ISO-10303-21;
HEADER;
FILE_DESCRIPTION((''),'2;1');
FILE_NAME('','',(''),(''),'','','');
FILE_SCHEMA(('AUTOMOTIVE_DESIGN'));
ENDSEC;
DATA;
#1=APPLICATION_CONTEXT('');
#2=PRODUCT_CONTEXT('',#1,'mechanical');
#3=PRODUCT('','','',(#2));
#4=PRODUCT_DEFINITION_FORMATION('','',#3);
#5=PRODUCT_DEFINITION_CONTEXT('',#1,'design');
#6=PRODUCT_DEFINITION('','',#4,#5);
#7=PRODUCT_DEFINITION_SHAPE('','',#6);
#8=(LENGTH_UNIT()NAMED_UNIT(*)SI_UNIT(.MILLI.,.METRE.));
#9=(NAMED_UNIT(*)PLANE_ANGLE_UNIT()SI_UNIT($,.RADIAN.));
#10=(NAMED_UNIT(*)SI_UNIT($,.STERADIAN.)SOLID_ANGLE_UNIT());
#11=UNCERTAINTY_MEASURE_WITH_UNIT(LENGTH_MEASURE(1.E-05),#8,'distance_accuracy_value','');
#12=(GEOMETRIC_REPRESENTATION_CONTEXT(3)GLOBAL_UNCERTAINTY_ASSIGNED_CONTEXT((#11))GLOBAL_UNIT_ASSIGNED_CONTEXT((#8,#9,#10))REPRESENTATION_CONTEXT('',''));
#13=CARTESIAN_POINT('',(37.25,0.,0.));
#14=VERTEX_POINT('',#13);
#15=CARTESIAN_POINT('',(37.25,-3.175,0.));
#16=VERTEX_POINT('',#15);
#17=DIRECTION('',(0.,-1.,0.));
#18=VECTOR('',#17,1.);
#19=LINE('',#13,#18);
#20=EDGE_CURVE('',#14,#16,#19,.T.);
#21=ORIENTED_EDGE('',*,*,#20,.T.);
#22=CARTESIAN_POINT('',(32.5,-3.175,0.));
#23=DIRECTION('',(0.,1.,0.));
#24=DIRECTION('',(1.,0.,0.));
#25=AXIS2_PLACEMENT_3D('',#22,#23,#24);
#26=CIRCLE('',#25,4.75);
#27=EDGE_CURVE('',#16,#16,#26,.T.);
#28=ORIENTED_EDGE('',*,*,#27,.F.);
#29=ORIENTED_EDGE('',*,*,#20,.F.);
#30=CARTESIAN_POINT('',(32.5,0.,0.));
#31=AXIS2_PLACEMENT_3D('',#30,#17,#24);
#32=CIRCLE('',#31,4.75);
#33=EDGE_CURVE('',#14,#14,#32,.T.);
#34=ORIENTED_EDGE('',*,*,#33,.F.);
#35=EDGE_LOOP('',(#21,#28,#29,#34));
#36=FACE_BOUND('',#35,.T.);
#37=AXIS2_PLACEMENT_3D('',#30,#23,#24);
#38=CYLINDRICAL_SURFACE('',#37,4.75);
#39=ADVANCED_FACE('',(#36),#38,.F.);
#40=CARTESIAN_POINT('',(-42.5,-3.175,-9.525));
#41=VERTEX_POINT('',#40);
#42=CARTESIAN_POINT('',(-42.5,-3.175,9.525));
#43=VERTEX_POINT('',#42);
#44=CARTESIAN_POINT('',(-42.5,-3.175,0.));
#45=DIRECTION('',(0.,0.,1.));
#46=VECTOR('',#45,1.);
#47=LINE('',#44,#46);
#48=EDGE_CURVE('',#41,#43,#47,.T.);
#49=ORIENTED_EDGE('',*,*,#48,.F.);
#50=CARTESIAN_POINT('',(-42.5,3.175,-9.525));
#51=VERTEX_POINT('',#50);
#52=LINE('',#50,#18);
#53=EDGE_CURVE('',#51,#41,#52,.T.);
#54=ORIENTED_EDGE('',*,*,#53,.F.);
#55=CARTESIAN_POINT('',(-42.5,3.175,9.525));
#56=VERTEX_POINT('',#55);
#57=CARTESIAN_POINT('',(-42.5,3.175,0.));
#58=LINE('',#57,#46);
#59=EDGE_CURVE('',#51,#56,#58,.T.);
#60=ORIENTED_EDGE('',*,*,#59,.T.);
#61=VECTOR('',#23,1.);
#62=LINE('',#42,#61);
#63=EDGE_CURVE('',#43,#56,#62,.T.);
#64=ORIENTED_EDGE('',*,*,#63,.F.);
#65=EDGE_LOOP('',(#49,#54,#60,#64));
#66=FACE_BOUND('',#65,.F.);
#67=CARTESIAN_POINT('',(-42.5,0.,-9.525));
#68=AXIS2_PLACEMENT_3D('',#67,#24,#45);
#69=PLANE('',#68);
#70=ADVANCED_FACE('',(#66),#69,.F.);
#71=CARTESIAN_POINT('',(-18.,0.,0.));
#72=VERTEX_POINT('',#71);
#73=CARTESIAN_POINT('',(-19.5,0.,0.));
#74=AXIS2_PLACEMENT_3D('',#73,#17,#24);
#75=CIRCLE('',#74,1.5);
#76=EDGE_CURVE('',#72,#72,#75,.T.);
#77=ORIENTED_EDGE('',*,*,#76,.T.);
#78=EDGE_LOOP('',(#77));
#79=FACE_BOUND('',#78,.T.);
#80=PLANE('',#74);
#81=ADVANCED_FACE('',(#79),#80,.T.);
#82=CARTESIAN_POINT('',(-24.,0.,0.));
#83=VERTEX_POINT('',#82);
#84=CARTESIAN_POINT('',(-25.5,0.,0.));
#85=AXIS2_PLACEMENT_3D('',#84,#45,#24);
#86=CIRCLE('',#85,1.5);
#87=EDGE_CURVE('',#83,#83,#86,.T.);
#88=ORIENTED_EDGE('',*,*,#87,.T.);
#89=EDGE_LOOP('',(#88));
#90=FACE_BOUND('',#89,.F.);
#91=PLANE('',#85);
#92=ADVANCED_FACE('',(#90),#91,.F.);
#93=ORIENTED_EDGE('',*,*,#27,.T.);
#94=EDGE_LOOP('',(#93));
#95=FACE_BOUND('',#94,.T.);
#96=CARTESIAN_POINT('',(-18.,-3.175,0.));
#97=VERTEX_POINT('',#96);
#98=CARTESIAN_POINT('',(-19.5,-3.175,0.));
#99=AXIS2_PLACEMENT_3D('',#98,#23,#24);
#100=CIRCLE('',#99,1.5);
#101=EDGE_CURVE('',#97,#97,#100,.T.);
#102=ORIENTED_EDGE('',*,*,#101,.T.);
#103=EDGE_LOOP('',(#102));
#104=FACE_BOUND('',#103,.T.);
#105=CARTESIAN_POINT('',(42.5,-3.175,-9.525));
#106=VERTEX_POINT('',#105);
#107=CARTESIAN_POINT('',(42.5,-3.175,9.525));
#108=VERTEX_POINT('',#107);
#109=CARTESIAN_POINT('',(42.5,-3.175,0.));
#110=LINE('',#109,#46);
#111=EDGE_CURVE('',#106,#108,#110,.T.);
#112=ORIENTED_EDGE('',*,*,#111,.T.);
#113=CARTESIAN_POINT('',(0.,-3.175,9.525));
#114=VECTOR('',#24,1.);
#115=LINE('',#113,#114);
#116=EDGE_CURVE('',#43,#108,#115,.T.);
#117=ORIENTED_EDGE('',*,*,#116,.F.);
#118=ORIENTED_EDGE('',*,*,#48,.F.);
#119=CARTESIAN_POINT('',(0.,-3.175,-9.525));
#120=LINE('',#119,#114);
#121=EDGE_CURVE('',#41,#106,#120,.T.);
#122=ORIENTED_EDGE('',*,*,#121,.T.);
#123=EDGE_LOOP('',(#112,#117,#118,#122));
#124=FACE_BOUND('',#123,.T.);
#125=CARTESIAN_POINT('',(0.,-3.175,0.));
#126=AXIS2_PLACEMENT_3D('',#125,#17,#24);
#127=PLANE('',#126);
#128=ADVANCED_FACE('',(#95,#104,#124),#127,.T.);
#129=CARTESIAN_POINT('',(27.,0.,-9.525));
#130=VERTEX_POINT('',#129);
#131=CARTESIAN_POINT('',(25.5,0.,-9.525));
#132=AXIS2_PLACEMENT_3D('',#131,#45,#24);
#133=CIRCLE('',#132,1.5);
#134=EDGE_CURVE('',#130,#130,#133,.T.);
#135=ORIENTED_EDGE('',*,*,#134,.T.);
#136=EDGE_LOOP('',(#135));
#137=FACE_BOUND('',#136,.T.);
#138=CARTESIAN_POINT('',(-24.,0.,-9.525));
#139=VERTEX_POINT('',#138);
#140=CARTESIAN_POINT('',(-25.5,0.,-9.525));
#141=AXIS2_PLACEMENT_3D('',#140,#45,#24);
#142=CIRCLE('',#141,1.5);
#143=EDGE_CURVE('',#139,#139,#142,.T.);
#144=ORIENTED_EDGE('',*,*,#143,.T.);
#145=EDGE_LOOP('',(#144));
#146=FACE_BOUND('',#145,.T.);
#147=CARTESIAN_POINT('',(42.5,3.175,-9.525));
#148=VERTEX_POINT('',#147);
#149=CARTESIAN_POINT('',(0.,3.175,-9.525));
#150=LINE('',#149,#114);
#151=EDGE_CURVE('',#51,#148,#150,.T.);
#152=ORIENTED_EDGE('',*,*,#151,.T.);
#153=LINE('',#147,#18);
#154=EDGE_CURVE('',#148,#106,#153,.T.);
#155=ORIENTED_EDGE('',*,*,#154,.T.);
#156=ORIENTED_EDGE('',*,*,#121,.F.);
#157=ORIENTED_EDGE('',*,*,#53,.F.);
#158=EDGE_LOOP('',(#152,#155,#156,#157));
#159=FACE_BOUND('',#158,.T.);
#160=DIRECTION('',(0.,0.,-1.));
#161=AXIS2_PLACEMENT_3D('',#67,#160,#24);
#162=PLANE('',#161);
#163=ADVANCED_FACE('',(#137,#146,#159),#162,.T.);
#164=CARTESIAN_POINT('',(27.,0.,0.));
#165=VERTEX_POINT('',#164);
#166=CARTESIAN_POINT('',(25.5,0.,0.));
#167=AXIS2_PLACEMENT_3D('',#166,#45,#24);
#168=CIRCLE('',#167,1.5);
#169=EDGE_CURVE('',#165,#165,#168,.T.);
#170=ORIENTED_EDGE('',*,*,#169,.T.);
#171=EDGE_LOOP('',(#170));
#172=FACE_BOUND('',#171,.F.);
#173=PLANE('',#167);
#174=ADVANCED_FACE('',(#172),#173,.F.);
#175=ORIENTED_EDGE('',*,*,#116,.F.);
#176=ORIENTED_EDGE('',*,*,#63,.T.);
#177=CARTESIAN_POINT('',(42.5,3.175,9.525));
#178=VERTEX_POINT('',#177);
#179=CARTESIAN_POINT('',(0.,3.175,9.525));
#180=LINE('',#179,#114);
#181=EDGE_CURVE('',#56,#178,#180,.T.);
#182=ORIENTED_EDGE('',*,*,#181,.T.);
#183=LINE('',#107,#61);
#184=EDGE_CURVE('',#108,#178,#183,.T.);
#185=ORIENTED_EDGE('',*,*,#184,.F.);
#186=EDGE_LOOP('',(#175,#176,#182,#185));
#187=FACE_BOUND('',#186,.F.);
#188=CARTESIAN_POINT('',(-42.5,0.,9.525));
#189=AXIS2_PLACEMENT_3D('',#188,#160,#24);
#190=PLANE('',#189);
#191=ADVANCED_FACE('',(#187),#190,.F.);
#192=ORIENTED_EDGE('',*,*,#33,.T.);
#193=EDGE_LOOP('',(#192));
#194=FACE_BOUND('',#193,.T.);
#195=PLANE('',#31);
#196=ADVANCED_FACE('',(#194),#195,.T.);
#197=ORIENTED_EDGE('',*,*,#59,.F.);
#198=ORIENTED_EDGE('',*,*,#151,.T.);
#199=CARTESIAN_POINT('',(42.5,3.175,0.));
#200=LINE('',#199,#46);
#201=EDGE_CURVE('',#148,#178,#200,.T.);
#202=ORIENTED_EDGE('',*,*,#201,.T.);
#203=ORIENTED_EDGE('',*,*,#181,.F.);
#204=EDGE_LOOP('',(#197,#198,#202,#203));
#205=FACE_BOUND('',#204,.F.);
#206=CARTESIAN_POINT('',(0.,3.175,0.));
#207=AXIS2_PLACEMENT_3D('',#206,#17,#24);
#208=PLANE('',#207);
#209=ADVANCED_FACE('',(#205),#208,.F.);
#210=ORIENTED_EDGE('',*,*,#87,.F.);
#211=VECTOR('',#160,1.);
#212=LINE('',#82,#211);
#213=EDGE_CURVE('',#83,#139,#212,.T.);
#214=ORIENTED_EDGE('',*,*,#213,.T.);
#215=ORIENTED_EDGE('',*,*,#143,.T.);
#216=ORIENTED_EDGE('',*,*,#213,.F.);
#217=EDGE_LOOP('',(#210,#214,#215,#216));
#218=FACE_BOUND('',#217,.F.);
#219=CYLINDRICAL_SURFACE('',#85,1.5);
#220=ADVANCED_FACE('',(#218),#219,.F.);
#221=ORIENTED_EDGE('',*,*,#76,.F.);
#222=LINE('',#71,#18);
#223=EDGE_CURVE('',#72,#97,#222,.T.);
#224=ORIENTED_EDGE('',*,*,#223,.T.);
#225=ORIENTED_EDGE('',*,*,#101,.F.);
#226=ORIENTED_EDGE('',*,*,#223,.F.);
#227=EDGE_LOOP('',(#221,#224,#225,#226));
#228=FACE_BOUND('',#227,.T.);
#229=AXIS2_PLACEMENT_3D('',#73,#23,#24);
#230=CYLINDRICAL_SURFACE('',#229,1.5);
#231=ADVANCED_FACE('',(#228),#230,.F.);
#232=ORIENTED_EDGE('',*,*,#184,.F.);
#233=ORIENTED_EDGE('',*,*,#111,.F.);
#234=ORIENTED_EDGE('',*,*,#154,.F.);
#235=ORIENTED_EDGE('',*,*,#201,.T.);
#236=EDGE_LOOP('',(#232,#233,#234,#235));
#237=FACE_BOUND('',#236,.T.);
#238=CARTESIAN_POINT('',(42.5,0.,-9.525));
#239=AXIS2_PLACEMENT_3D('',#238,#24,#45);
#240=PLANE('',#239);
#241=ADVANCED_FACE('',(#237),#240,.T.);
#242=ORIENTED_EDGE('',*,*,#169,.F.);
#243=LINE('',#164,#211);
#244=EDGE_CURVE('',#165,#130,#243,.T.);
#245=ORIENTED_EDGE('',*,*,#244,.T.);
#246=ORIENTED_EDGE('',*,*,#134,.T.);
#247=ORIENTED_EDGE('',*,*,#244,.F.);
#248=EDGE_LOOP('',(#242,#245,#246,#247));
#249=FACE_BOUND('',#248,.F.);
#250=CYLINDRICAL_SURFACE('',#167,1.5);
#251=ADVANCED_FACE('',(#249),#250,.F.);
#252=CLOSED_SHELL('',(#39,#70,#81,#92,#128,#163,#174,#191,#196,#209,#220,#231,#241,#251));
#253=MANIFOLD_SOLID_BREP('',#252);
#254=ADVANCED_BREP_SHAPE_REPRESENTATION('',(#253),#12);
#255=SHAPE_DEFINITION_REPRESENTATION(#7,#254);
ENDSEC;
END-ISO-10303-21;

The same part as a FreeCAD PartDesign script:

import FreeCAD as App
import Part
import Sketcher

V = App.Vector
Q = App.Units.Quantity


def add_polygon(sketch, points):
    """Adds a closed chain of lines whose ends are joined by coincident constraints."""
    first, n = sketch.GeometryCount, len(points)
    for a, b in zip(points, points[1:] + points[:1]):
        sketch.addGeometry(Part.LineSegment(App.Vector(*a, 0), App.Vector(*b, 0)), False)
    for i in range(n):
        sketch.addConstraint(Sketcher.Constraint("Coincident", first + i, 2, first + (i + 1) % n, 1))

doc = App.newDocument("Part")
params = doc.addObject("Spreadsheet::Sheet", "Params")
for row, (alias, value) in enumerate([
    ("sketch1_width", "85 mm"),
    ("sketch1_height", "19.05 mm"),
    ("pad1_length", "6.35 mm"),
    ("sketch2_diameter", "3 mm"),
    ("sketch2_diameter2", "9.5 mm"),
    ("pocket1_length", "21.8 mm"),
    ("sketch3_diameter", "3 mm"),
    ("pocket2_length", "15 mm"),
], start=1):
    params.set(f"A{row}", alias)
    params.set(f"B{row}", "=" + value)
    params.setAlias(f"B{row}", alias)

body = doc.addObject("PartDesign::Body", "Body")

# Sketch on XZ plane
sketch1 = body.newObject("Sketcher::SketchObject", "Sketch")
sketch1.AttachmentSupport = (doc.getObject("XZ_Plane"), [""])
sketch1.MapMode = "FlatFace"
add_polygon(sketch1, [(-42.5, 9.525), (-42.5, -9.525), (42.5, -9.525), (42.5, 9.525)])  # lines 0-3
sketch1.addConstraint([
    Sketcher.Constraint("Vertical", 0),
    Sketcher.Constraint("Horizontal", 1),
    Sketcher.Constraint("Vertical", 2),
    Sketcher.Constraint("Horizontal", 3),
    Sketcher.Constraint("Symmetric", 0, 2, 2, 2, -1, 1),
    Sketcher.Constraint("DistanceX", 1, 1, 1, 2, Q("85 mm")),
    Sketcher.Constraint("DistanceY", 0, 2, 0, 1, Q("19.05 mm")),
])
sketch1.setExpression("Constraints[9]", "Params.sketch1_width")
sketch1.setExpression("Constraints[10]", "Params.sketch1_height")
pad1 = body.newObject("PartDesign::Pad", "Pad")
pad1.Profile = sketch1
pad1.setExpression("Length", "Params.pad1_length")
pad1.Midplane = True

# Sketch on XZ plane
sketch2 = body.newObject("Sketcher::SketchObject", "Sketch001")
sketch2.AttachmentSupport = (doc.getObject("XZ_Plane"), [""])
sketch2.MapMode = "FlatFace"
sketch2.addGeometry([
    Part.Circle(V(32.5, 0, 0), V(0, 0, 1), 4.75),
    Part.Circle(V(-19.5, 0, 0), V(0, 0, 1), 1.5),
], False)
sketch2.addConstraint([
    Sketcher.Constraint("PointOnObject", 0, 3, -1),
    Sketcher.Constraint("PointOnObject", 1, 3, -1),
    Sketcher.Constraint("Diameter", 1, Q("3 mm")),
    Sketcher.Constraint("Diameter", 0, Q("9.5 mm")),
    Sketcher.Constraint("DistanceX", 1, 3, 0, 3, Q("52 mm")),
    Sketcher.Constraint("DistanceX", -1, 1, 0, 3, Q("32.5 mm")),
])
sketch2.setExpression("Constraints[2]", "Params.sketch2_diameter")
sketch2.setExpression("Constraints[3]", "Params.sketch2_diameter2")
pocket1 = body.newObject("PartDesign::Pocket", "Pocket")
pocket1.Profile = sketch2
pocket1.setExpression("Length", "Params.pocket1_length")
pocket1.Reversed = True

# Sketch on XY plane
sketch3 = body.newObject("Sketcher::SketchObject", "Sketch002")
sketch3.AttachmentSupport = (doc.getObject("XY_Plane"), [""])
sketch3.MapMode = "FlatFace"
sketch3.addGeometry([
    Part.Circle(V(-25.5, 0, 0), V(0, 0, 1), 1.5),
    Part.Circle(V(25.5, 0, 0), V(0, 0, 1), 1.5),
], False)
sketch3.addConstraint([
    Sketcher.Constraint("Equal", 0, 1),
    Sketcher.Constraint("Symmetric", 0, 3, 1, 3, -1, 1),
    Sketcher.Constraint("PointOnObject", 0, 3, -1),
    Sketcher.Constraint("Diameter", 0, Q("3 mm")),
    Sketcher.Constraint("DistanceX", 0, 3, 1, 3, Q("51 mm")),
])
sketch3.setExpression("Constraints[3]", "Params.sketch3_diameter")
pocket2 = body.newObject("PartDesign::Pocket", "Pocket001")
pocket2.Profile = sketch3
pocket2.setExpression("Length", "Params.pocket2_length")

doc.recompute()
